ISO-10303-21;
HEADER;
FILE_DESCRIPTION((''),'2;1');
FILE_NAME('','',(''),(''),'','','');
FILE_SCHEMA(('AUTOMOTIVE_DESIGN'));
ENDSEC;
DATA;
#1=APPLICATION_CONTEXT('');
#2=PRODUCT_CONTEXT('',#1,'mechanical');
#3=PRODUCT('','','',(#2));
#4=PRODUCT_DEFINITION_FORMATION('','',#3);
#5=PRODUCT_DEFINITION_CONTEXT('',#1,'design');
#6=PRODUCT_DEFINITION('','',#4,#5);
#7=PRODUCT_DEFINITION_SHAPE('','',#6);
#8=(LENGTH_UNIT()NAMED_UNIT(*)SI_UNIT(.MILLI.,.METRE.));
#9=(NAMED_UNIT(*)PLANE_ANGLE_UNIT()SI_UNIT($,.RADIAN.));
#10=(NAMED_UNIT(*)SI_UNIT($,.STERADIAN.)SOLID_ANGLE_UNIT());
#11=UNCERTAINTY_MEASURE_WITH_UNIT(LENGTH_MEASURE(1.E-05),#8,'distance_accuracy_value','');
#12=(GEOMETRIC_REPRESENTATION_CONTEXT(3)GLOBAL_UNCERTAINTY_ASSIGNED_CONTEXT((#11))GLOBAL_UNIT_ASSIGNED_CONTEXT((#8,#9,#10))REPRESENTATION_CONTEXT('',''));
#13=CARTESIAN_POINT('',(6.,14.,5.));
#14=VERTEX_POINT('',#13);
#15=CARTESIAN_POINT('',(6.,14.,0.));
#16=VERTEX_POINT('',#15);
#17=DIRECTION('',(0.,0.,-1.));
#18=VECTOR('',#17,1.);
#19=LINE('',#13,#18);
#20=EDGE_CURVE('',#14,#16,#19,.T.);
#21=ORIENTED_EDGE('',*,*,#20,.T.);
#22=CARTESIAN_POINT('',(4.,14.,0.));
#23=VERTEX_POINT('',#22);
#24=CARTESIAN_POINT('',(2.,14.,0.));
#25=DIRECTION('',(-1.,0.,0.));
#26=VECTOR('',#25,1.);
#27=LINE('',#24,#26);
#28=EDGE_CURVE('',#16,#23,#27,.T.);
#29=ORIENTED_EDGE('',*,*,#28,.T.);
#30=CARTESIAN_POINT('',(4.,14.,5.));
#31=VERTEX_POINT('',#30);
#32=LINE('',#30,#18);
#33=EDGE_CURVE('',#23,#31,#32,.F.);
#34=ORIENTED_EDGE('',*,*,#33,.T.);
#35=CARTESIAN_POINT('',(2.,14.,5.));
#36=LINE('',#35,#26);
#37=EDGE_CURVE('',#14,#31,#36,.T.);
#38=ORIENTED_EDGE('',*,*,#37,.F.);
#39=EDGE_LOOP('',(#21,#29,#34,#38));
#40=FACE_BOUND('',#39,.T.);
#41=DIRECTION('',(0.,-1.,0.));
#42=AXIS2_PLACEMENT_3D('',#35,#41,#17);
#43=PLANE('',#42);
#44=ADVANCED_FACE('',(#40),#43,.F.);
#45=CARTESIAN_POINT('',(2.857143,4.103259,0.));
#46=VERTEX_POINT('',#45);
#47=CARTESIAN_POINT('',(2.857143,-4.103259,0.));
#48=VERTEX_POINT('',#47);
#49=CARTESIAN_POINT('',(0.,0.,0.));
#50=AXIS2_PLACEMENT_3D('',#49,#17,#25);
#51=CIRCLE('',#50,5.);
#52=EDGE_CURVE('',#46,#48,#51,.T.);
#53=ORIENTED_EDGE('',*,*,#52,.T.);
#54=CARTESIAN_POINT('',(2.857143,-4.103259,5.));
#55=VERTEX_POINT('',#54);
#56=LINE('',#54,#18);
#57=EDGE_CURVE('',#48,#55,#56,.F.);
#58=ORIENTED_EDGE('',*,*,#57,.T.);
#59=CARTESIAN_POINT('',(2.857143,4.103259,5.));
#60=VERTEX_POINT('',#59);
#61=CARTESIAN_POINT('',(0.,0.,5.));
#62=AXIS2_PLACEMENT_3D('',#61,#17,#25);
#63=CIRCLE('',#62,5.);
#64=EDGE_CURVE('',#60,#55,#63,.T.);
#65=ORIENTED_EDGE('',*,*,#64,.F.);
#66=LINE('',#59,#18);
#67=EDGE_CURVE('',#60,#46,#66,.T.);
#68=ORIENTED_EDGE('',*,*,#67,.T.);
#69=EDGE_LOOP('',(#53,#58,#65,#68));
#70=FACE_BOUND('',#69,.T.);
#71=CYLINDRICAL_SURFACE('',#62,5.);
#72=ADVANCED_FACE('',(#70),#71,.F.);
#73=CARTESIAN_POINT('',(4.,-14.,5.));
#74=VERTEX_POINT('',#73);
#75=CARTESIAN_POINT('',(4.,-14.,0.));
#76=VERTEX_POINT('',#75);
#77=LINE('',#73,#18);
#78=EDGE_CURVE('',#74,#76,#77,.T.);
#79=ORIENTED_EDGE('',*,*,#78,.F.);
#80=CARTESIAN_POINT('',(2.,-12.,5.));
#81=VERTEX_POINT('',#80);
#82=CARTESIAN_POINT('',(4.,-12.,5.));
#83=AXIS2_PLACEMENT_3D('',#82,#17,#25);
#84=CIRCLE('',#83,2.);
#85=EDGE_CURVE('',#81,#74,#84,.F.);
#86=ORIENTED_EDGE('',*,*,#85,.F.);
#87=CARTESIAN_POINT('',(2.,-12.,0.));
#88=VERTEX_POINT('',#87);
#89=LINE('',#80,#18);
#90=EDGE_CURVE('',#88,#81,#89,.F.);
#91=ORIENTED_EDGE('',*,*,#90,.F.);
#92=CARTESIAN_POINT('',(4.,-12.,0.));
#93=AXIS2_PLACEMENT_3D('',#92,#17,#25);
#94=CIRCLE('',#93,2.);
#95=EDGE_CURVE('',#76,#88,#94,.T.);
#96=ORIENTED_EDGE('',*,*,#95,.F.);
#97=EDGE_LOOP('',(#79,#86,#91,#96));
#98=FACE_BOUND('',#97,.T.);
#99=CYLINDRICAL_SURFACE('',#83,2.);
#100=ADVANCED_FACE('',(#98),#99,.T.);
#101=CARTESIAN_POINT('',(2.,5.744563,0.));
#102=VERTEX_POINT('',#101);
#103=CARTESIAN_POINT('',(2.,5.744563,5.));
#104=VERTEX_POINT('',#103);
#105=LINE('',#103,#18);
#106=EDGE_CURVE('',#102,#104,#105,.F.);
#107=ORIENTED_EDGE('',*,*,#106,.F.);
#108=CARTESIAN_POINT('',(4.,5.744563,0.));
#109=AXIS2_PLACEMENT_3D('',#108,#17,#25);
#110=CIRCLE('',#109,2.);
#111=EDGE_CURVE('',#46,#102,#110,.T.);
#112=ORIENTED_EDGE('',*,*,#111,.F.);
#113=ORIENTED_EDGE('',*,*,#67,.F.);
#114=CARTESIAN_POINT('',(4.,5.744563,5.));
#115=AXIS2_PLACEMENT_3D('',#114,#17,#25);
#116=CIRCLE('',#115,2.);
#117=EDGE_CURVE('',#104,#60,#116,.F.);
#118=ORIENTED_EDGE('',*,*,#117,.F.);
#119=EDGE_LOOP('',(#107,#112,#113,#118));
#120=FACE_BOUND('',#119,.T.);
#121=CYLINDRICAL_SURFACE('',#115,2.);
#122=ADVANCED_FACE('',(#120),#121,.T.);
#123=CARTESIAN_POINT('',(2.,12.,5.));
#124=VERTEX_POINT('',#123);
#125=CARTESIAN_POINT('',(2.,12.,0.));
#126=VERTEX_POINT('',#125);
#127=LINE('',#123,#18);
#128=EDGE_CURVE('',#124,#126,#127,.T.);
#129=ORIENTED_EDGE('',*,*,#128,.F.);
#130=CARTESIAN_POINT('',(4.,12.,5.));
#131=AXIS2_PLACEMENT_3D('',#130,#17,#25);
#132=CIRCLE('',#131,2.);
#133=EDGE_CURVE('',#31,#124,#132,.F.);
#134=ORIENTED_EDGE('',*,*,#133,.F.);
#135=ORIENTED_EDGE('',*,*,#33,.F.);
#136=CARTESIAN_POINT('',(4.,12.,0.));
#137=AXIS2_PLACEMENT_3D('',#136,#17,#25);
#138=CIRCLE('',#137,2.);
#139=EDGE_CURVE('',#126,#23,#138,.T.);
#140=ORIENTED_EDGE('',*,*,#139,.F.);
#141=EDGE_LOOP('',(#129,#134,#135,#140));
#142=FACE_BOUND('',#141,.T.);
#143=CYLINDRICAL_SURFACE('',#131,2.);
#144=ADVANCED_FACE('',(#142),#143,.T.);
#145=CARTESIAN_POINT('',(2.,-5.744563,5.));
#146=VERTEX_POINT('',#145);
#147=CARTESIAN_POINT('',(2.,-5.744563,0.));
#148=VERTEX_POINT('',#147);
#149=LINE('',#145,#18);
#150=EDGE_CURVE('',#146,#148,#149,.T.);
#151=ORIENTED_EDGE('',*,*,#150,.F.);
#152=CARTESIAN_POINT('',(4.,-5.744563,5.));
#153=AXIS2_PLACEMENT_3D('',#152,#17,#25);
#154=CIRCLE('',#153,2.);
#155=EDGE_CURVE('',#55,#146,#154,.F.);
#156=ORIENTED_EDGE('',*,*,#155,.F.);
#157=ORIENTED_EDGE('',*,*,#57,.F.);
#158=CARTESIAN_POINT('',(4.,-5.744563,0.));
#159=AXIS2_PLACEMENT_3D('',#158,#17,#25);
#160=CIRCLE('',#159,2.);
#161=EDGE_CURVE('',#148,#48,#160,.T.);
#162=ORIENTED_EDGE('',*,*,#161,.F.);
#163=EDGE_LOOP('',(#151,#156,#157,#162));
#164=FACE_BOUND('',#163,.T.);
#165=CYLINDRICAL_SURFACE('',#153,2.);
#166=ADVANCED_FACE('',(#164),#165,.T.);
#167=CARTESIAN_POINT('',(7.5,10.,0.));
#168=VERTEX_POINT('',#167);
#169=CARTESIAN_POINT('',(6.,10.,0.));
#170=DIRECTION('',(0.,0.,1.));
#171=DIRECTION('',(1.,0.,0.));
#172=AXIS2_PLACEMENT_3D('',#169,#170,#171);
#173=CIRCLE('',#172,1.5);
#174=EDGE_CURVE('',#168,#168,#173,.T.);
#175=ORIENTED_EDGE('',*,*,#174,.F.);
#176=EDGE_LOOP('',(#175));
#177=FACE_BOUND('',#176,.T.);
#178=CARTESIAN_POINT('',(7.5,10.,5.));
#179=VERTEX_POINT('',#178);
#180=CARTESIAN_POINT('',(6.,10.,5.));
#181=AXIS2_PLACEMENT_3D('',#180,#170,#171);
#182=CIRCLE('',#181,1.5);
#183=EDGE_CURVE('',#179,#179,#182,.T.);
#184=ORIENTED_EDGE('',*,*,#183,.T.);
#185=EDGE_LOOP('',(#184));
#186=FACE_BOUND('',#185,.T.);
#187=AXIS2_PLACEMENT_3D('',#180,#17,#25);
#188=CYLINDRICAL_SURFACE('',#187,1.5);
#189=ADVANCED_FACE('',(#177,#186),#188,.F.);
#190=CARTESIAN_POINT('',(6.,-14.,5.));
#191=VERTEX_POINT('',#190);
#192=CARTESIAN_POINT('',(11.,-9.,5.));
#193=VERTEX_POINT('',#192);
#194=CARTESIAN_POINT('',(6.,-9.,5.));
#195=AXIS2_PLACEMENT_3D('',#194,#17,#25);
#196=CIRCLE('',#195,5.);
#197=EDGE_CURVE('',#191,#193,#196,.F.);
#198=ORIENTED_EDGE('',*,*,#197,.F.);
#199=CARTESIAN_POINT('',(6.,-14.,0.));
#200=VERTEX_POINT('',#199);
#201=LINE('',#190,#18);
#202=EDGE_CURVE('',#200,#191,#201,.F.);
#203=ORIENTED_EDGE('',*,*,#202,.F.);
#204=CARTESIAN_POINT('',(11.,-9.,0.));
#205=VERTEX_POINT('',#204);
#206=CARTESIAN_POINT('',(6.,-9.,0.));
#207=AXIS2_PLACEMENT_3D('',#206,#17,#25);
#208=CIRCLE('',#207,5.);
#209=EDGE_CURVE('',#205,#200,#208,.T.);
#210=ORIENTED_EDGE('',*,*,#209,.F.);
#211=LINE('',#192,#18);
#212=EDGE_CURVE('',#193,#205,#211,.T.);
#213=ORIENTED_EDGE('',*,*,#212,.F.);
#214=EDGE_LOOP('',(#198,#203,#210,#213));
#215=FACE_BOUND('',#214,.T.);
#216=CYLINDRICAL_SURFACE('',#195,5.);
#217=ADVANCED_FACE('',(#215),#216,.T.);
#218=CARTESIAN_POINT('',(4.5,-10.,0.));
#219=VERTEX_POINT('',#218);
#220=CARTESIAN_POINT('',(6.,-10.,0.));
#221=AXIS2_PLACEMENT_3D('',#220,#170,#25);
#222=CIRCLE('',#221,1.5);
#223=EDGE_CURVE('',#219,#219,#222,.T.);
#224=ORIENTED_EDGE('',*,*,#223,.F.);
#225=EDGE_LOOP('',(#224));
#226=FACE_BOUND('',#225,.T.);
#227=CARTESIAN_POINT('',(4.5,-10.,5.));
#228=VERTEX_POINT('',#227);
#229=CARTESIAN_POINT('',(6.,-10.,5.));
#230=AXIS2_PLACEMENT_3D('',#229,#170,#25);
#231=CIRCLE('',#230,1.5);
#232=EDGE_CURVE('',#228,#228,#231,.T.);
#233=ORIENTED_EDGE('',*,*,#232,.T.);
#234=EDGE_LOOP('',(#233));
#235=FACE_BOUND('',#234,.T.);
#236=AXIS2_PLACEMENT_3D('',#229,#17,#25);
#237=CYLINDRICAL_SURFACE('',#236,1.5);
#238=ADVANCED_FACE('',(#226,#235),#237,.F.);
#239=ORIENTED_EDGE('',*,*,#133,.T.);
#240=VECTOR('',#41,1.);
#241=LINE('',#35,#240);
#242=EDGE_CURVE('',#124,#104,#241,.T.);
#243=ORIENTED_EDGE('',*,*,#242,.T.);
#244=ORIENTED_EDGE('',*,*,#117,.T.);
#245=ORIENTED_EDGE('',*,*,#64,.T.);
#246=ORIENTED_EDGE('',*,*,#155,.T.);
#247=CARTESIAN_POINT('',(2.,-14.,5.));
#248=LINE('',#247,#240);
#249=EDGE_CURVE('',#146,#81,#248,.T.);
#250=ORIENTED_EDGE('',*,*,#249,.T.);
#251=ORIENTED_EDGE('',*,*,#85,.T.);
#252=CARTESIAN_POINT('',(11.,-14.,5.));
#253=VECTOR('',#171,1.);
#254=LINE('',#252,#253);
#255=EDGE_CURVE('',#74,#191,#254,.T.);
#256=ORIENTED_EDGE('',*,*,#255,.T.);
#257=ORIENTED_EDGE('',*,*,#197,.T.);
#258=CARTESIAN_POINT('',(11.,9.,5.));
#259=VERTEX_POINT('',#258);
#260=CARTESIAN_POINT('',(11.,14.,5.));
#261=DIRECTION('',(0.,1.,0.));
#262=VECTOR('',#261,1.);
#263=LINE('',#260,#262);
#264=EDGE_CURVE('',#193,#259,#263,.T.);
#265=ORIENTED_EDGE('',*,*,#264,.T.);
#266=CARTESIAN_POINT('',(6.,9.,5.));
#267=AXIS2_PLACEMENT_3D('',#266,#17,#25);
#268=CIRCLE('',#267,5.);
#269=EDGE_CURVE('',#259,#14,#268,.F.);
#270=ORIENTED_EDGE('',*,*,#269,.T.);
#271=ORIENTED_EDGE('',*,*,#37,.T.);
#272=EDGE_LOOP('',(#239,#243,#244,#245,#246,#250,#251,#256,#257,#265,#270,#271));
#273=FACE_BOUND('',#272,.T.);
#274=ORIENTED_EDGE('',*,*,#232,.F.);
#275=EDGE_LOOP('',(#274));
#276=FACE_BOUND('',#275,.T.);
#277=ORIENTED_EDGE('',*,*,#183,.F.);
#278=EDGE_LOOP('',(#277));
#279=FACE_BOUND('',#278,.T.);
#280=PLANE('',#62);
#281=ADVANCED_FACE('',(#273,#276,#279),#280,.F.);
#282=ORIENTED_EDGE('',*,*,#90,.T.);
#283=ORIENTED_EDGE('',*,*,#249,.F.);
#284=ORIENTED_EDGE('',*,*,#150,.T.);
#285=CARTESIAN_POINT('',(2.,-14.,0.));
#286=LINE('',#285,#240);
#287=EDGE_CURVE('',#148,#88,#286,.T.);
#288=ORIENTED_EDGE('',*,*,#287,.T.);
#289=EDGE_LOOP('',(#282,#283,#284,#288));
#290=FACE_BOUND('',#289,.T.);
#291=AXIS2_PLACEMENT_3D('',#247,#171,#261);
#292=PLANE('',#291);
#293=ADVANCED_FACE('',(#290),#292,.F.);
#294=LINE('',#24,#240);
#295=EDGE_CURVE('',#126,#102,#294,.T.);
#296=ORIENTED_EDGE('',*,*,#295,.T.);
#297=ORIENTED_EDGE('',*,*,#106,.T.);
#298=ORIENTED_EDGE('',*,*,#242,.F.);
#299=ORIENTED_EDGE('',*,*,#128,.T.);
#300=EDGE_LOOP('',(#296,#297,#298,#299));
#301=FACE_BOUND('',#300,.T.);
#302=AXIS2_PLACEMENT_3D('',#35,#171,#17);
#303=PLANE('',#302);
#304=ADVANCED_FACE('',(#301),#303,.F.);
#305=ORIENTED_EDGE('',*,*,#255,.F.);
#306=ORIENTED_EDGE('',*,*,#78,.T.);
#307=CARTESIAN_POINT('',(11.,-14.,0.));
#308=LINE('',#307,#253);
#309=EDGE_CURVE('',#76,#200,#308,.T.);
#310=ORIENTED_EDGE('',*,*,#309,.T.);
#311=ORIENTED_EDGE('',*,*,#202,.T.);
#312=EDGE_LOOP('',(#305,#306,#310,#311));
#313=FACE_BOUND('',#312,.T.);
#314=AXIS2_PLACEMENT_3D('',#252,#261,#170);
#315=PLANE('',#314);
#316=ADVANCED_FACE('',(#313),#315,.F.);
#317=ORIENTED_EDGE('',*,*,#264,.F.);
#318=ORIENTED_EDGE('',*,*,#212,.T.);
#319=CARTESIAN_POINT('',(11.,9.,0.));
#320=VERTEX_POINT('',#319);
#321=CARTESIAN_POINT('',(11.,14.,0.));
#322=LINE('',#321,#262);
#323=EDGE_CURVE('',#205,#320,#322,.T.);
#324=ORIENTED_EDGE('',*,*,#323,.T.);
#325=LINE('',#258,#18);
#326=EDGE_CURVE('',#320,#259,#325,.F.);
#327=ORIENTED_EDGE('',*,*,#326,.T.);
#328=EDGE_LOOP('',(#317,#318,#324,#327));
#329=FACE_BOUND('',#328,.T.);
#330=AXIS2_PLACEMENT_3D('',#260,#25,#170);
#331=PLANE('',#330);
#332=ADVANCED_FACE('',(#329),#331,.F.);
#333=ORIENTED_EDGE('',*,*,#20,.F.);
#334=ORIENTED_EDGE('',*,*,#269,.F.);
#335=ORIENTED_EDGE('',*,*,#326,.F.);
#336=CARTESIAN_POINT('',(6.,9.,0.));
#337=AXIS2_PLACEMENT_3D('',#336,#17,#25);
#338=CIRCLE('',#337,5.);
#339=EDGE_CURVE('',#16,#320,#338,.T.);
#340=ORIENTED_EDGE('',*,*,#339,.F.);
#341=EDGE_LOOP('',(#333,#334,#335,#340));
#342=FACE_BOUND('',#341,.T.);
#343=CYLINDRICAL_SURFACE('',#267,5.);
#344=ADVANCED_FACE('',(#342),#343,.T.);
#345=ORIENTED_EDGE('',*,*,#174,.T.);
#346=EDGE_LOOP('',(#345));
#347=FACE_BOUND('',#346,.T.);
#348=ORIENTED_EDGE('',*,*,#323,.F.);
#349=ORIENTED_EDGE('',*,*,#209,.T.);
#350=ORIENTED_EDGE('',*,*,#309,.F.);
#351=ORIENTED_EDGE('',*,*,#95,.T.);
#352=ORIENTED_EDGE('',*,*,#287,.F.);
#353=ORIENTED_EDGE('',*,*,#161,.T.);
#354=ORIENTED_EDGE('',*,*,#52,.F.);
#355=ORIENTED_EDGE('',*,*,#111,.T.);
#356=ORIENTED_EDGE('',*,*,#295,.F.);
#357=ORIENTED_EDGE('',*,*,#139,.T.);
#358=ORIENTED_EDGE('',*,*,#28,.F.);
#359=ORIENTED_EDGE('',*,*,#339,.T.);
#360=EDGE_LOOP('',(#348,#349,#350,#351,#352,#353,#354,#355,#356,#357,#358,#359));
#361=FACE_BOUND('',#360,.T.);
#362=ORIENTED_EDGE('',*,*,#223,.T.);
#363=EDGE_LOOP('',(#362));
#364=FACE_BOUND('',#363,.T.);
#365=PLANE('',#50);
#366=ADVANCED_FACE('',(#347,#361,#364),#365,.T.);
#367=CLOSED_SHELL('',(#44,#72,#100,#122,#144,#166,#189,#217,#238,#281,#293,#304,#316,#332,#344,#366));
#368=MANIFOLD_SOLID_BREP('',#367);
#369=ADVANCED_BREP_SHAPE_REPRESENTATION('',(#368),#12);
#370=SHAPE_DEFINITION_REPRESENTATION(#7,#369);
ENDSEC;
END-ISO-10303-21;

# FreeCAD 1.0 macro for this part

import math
import FreeCAD as App
import Part
import Sketcher
Q = App.Units.Quantity


def edges_at(feature, points):
    """Names of the edges that pass closest to the given points."""
    edges = feature.Shape.Edges
    near = lambda p: min(range(len(edges)), key=lambda i: edges[i].distToShape(Part.Vertex(*p))[0])
    return sorted({f"Edge{near(p) + 1}" for p in points})

doc = App.newDocument("Part")
body = doc.addObject("PartDesign::Body", "Body")

# Sketch on XY plane
sketch1 = body.newObject("Sketcher::SketchObject", "Sketch")
sketch1.AttachmentSupport = (doc.getObject("XY_Plane"), [""])
sketch1.MapMode = "FlatFace"
sketch1.addGeometry([
    Part.LineSegment(App.Vector(2, 14, 0), App.Vector(2, 4.6, 0)),  # 0
    Part.ArcOfCircle(Part.Circle(App.Vector(0, 0, 0), App.Vector(0, 0, 1), 5), math.radians(-66), math.radians(66)),  # 1
    Part.LineSegment(App.Vector(2, -4.6, 0), App.Vector(2, -14, 0)),  # 2
    Part.LineSegment(App.Vector(2, -14, 0), App.Vector(11, -14, 0)),  # 3
    Part.LineSegment(App.Vector(11, -14, 0), App.Vector(11, 14, 0)),  # 4
    Part.LineSegment(App.Vector(11, 14, 0), App.Vector(2, 14, 0)),  # 5
    Part.Circle(App.Vector(6, -10, 0), App.Vector(0, 0, 1), 1.5),  # 6
    Part.Circle(App.Vector(6, 10, 0), App.Vector(0, 0, 1), 1.5),  # 7
], False)
sketch1.addConstraint([
    Sketcher.Constraint("Coincident", 0, 2, 1, 2),
    Sketcher.Constraint("Coincident", 1, 1, 2, 1),
    Sketcher.Constraint("Coincident", 2, 2, 3, 1),
    Sketcher.Constraint("Coincident", 3, 2, 4, 1),
    Sketcher.Constraint("Coincident", 4, 2, 5, 1),
    Sketcher.Constraint("Coincident", 5, 2, 0, 1),
    Sketcher.Constraint("Vertical", 0),
    Sketcher.Constraint("Vertical", 2),
    Sketcher.Constraint("Horizontal", 3),
    Sketcher.Constraint("Vertical", 4),
    Sketcher.Constraint("Horizontal", 5),
    Sketcher.Constraint("Coincident", 1, 3, -1, 1),
    Sketcher.Constraint("Equal", 6, 7),
    Sketcher.Constraint("Symmetric", 6, 3, 7, 3, -1),
    Sketcher.Constraint("Symmetric", 2, 2, 5, 2, -1),
    Sketcher.Constraint("Diameter", 6, Q("3 mm")),
    Sketcher.Constraint("Radius", 1, Q("5 mm")),
    Sketcher.Constraint("DistanceX", 3, 1, 3, 2, Q("9 mm")),
    Sketcher.Constraint("DistanceY", 4, 1, 4, 2, Q("28 mm")),
    Sketcher.Constraint("DistanceX", -1, 1, 6, 3, Q("6 mm")),
    Sketcher.Constraint("DistanceY", 6, 3, -1, 1, Q("10 mm")),
    Sketcher.Constraint("DistanceX", -1, 1, 0, 2, Q("2 mm")),
])
pad1 = body.newObject("PartDesign::Pad", "Pad")
pad1.Profile = sketch1
pad1.Length = 5
doc.recompute()

fillet = body.newObject("PartDesign::Fillet", "Fillet")
fillet.Base = (pad1, edges_at(pad1, [(11, 14, 2.5), (11, -14, 2.5)]))
fillet.Radius = 5
doc.recompute()

fillet2 = body.newObject("PartDesign::Fillet", "Fillet001")
fillet2.Base = (fillet, edges_at(fillet, [
    (2, -14, 2.5),
    (2, -4.583, 2.5),
    (2, 4.583, 2.5),
    (2, 14, 2.5),
]))
fillet2.Radius = 2

doc.recompute()
